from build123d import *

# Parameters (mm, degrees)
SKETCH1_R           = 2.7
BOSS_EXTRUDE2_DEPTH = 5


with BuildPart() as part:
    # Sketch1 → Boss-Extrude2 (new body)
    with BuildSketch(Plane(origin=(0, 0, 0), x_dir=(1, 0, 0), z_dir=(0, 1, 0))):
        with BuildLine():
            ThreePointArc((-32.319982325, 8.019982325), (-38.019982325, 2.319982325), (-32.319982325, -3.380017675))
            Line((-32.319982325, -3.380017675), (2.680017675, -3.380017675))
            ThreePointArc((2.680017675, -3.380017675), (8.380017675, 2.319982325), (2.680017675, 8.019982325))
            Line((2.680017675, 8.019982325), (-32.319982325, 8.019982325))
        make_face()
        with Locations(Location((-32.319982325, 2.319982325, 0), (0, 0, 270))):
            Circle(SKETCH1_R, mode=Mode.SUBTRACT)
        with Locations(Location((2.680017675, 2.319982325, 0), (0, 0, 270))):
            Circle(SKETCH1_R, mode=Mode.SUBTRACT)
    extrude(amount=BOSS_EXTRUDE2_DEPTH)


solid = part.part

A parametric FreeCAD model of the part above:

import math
import FreeCAD as App
import Part
import Sketcher

V = App.Vector

doc = App.newDocument("Part")
body = doc.addObject("PartDesign::Body", "Body")

# Sketch on XZ plane
sketch1 = body.newObject("Sketcher::SketchObject", "Sketch")
sketch1.AttachmentSupport = (doc.getObject("XZ_Plane"), [""])
sketch1.MapMode = "FlatFace"
sketch1.addGeometry([
    Part.ArcOfCircle(Part.Circle(V(-32.3, -2.3, 0), V(0, 0, 1), 5.7), math.radians(90), math.radians(270)),  # 0
    Part.LineSegment(V(-32.3, 3.4, 0), V(2.7, 3.4, 0)),  # 1
    Part.ArcOfCircle(Part.Circle(V(2.7, -2.3, 0), V(0, 0, 1), 5.7), math.radians(-90), math.radians(90)),  # 2
    Part.LineSegment(V(2.7, -8, 0), V(-32.3, -8, 0)),  # 3
    Part.Circle(V(-32.3, -2.3, 0), V(0, 0, 1), 2.7),  # 4
    Part.Circle(V(2.7, -2.3, 0), V(0, 0, 1), 2.7),  # 5
], False)
sketch1.addConstraint([
    Sketcher.Constraint("Tangent", 0, 1, 1, 1),
    Sketcher.Constraint("Tangent", 1, 2, 2, 2),
    Sketcher.Constraint("Tangent", 2, 1, 3, 1),
    Sketcher.Constraint("Tangent", 3, 2, 0, 2),
    Sketcher.Constraint("Horizontal", 1),
    Sketcher.Constraint("Horizontal", 3),
    Sketcher.Constraint("Coincident", 4, 3, 0, 3),
    Sketcher.Constraint("Coincident", 5, 3, 2, 3),
    Sketcher.Constraint("Equal", 4, 5),
    Sketcher.Constraint("Diameter", 4, 5.4),
    Sketcher.Constraint("Radius", 0, 5.7),
    Sketcher.Constraint("DistanceX", 1, 1, 1, 2, 35.0),
    Sketcher.Constraint("DistanceX", 0, 3, -1, 1, 32.319982),
    Sketcher.Constraint("DistanceY", 0, 3, -1, 1, 2.319982),
])
pad1 = body.newObject("PartDesign::Pad", "Pad")
pad1.Profile = sketch1
pad1.Length = 5
pad1.Reversed = True

doc.recompute()
